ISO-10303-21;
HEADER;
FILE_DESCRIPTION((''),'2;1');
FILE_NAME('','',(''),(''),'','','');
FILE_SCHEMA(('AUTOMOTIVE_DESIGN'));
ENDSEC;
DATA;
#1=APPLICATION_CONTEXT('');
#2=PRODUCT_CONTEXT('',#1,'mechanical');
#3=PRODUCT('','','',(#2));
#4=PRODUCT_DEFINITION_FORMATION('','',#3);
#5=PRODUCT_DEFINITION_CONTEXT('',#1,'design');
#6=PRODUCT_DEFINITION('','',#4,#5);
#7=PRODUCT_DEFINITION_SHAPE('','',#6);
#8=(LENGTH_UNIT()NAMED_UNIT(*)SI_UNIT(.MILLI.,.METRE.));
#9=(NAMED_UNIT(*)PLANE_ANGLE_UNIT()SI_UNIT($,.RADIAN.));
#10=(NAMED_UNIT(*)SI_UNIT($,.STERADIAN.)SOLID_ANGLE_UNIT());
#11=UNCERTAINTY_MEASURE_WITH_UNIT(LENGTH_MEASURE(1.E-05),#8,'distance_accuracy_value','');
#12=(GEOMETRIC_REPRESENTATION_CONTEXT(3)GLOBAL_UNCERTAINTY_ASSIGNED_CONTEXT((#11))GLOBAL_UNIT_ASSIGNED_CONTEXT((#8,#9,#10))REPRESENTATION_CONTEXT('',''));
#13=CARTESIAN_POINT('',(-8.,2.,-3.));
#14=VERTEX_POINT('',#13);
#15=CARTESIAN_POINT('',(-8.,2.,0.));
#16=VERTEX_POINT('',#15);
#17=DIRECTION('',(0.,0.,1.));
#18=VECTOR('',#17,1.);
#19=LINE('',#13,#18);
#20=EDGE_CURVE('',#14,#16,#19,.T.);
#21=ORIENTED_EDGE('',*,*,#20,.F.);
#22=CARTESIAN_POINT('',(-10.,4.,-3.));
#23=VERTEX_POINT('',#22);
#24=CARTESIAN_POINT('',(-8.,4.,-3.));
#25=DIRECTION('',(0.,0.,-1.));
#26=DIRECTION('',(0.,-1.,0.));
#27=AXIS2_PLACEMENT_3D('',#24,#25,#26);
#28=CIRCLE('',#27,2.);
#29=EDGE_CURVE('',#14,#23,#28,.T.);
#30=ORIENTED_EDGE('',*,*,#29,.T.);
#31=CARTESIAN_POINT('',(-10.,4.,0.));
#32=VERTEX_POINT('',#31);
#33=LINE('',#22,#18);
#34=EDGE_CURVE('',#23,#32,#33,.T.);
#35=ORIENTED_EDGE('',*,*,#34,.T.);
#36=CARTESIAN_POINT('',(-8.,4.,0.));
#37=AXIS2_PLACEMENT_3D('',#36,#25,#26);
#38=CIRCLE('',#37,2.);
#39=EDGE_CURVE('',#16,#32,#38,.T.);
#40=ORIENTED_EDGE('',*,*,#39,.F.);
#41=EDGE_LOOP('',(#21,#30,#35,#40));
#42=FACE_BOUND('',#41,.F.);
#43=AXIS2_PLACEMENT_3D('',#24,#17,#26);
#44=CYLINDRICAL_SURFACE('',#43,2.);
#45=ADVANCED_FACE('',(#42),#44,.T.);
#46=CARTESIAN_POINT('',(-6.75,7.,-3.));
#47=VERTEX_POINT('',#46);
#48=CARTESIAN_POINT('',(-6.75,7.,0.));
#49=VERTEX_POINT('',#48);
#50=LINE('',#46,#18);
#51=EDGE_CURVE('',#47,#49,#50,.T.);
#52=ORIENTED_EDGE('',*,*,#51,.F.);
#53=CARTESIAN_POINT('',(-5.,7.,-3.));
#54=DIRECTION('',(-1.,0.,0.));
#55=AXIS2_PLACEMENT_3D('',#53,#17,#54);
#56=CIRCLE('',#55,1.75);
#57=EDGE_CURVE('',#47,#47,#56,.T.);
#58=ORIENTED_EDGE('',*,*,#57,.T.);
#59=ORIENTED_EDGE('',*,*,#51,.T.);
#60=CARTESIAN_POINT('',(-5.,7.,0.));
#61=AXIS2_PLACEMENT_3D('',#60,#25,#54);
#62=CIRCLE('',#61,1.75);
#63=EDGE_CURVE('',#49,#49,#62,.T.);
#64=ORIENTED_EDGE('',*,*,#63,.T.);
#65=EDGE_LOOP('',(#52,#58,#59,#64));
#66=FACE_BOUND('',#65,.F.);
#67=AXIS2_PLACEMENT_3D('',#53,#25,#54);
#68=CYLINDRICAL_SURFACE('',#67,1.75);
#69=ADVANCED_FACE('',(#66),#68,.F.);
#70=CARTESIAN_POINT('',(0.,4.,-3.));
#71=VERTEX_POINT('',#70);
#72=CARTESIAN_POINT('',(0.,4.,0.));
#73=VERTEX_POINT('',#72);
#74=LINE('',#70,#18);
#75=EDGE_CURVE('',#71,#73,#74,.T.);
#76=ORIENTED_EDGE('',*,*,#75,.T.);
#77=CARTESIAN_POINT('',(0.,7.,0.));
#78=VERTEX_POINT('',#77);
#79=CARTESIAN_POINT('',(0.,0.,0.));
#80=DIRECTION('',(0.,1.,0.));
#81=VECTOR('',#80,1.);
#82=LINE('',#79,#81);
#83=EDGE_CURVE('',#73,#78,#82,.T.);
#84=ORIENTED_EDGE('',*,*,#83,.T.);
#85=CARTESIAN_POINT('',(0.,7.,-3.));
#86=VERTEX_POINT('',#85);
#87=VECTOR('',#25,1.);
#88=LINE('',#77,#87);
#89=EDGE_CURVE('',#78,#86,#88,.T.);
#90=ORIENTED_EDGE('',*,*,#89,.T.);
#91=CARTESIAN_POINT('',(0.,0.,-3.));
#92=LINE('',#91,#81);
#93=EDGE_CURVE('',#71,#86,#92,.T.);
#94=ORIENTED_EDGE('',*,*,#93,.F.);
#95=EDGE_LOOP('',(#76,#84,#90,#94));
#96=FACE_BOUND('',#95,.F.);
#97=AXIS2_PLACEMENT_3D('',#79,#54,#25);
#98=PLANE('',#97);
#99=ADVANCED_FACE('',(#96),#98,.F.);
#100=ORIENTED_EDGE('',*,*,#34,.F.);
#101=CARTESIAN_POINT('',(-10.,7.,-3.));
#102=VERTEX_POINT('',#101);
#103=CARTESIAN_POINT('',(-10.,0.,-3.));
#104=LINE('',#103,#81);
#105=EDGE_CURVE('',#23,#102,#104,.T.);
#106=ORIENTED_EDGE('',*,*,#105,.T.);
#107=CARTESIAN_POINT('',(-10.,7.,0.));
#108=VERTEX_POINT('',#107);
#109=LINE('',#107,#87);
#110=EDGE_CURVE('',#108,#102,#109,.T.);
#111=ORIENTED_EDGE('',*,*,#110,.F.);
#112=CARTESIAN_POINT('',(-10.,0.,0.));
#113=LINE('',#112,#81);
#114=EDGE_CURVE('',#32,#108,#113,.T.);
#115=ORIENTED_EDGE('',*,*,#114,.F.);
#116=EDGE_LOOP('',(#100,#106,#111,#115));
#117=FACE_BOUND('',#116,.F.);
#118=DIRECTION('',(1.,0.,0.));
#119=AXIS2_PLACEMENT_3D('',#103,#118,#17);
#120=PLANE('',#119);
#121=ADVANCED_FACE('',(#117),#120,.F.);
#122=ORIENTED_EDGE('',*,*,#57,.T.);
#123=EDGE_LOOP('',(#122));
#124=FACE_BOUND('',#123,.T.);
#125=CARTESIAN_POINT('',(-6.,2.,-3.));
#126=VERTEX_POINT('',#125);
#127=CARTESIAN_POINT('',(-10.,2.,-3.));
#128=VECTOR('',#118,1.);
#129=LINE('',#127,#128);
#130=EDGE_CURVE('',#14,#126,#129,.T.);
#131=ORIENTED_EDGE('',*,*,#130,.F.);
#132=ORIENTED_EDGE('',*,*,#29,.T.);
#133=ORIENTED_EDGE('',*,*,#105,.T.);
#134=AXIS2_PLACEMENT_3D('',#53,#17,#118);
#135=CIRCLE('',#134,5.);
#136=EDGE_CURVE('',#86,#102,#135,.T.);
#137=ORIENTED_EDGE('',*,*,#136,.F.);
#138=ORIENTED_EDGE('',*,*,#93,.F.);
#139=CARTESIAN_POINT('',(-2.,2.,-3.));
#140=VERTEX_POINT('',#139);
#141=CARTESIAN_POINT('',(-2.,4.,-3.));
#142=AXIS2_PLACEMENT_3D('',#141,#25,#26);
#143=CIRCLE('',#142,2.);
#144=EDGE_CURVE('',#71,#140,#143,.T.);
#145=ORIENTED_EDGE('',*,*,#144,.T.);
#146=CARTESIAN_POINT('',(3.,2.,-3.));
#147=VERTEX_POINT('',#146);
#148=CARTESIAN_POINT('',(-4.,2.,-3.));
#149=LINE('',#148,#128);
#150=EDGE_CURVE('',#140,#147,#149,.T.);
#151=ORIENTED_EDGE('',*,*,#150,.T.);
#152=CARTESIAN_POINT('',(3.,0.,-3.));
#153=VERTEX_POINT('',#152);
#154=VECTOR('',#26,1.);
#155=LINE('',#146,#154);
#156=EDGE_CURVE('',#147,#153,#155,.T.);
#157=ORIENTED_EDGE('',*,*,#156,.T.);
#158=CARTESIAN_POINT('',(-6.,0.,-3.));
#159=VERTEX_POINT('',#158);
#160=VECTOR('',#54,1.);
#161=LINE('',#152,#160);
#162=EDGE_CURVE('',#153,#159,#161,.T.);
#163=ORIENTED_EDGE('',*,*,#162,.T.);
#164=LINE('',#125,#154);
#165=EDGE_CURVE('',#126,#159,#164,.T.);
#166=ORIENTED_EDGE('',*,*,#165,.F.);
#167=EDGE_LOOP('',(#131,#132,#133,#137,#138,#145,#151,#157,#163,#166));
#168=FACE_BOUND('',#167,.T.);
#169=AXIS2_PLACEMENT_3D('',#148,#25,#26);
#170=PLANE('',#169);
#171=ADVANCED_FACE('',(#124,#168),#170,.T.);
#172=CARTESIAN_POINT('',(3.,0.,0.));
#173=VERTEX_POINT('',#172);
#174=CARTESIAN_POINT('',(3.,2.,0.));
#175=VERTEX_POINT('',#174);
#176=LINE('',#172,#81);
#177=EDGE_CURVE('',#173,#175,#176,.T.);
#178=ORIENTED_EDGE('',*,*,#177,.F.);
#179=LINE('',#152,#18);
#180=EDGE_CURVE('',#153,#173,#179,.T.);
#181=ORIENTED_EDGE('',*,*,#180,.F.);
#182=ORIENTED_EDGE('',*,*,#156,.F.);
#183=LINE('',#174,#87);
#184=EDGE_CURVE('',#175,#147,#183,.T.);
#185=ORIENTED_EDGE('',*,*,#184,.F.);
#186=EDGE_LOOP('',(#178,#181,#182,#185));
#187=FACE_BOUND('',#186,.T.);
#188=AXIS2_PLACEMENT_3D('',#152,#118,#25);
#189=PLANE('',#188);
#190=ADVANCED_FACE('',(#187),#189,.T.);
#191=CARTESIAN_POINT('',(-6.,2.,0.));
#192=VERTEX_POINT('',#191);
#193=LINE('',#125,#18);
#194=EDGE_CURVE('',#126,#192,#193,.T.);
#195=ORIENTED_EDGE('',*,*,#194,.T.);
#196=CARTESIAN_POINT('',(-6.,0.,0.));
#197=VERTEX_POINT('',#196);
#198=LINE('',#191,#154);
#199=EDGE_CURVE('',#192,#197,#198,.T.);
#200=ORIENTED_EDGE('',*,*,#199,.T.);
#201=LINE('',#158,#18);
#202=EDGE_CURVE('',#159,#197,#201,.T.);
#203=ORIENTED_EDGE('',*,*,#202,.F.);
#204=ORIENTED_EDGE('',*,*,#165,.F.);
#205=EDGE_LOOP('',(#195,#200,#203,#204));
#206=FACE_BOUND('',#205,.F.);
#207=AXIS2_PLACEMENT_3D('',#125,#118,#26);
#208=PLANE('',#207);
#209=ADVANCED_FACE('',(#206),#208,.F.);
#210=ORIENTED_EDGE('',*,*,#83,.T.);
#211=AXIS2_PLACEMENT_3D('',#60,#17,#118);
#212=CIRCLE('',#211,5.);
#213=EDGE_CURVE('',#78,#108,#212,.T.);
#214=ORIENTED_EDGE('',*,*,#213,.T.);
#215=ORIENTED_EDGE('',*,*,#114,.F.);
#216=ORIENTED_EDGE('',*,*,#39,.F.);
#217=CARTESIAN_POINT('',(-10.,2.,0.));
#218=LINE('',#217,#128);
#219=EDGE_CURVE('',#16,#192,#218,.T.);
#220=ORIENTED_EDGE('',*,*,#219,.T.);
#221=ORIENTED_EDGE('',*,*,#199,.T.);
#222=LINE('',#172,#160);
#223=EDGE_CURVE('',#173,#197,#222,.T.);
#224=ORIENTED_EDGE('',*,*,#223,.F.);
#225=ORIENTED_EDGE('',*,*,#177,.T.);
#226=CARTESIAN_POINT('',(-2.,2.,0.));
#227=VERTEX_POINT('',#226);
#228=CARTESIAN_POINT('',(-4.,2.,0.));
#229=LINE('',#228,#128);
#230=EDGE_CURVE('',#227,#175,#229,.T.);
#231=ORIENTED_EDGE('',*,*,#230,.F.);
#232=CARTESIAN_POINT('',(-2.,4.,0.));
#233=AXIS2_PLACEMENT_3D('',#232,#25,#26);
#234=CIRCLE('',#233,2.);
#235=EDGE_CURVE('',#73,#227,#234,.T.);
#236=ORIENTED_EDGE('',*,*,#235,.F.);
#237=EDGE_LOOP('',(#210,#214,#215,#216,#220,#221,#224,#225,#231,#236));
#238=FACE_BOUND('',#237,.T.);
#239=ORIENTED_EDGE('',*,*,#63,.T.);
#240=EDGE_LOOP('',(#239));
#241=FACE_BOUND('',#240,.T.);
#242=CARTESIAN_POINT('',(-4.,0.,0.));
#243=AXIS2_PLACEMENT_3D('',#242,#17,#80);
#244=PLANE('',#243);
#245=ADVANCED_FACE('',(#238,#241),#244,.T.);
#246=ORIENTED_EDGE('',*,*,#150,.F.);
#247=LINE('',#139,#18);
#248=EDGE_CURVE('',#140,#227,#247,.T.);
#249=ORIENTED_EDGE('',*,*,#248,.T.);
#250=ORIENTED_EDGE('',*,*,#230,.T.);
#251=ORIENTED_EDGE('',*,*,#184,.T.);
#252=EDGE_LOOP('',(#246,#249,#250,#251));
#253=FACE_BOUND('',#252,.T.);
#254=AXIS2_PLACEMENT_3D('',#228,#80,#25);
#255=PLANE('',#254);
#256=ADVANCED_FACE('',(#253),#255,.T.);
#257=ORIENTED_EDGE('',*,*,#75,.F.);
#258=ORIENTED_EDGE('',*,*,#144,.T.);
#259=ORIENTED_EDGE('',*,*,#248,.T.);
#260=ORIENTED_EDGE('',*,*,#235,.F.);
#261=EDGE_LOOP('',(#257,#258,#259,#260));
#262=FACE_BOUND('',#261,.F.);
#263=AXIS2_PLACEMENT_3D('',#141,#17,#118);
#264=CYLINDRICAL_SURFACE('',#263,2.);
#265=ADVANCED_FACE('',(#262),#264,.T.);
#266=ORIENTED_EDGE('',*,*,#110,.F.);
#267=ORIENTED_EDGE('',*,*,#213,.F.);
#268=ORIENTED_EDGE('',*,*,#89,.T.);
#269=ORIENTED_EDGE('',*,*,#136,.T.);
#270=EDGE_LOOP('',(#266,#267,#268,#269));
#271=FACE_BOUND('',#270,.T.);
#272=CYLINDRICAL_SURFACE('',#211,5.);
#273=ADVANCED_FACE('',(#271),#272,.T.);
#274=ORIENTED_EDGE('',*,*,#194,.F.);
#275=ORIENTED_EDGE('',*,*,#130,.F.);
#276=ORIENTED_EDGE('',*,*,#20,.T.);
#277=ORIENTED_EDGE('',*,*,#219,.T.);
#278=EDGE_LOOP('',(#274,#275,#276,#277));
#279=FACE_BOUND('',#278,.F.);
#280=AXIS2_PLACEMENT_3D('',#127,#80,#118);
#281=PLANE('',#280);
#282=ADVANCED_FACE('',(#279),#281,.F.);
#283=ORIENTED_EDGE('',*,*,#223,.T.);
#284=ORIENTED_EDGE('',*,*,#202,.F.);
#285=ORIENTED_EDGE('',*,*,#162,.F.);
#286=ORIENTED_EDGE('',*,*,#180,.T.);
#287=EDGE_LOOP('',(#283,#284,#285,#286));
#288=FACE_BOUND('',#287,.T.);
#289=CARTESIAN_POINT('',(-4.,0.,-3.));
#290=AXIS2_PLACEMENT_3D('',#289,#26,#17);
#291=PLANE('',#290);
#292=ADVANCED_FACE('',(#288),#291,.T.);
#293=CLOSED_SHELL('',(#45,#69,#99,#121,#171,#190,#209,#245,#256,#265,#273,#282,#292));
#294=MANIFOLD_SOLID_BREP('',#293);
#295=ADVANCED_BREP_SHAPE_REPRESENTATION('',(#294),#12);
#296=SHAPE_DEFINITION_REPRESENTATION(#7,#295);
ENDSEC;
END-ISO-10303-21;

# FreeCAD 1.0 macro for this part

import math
import FreeCAD as App
import Part
import Sketcher
from FreeCAD import Vector


def edges_at(feature, points):
    """Names of the edges that pass closest to the given points."""
    edges = feature.Shape.Edges
    near = lambda p: min(range(len(edges)), key=lambda i: edges[i].distToShape(Part.Vertex(*p))[0])
    return sorted({f"Edge{near(p) + 1}" for p in points})

doc = App.newDocument("Part")
body = doc.addObject("PartDesign::Body", "Body")

# Sketch on XZ plane
sketch1 = body.newObject("Sketcher::SketchObject", "Sketch")
sketch1.AttachmentSupport = (doc.getObject("XZ_Plane"), [""])
sketch1.MapMode = "FlatFace"
sketch1.addGeometry(Part.LineSegment(Vector(-10, 0, 0), Vector(0, 0, 0)), False)
sketch1.addGeometry(Part.LineSegment(Vector(0, 0, 0), Vector(0, -3, 0)), False)
sketch1.addGeometry(Part.LineSegment(Vector(0, -3, 0), Vector(-10, -3, 0)), False)
sketch1.addGeometry(Part.LineSegment(Vector(-10, -3, 0), Vector(-10, 0, 0)), False)
sketch1.addConstraint(Sketcher.Constraint("Coincident", 0, 2, 1, 1))
sketch1.addConstraint(Sketcher.Constraint("Coincident", 1, 2, 2, 1))
sketch1.addConstraint(Sketcher.Constraint("Coincident", 2, 2, 3, 1))
sketch1.addConstraint(Sketcher.Constraint("Coincident", 3, 2, 0, 1))
sketch1.addConstraint(Sketcher.Constraint("Horizontal", 0))
sketch1.addConstraint(Sketcher.Constraint("Vertical", 1))
sketch1.addConstraint(Sketcher.Constraint("Horizontal", 2))
sketch1.addConstraint(Sketcher.Constraint("Vertical", 3))
sketch1.addConstraint(Sketcher.Constraint("Coincident", 0, 2, -1, 1))
sketch1.addConstraint(Sketcher.Constraint("DistanceX", 0, 1, 0, 2, 10.0))
sketch1.addConstraint(Sketcher.Constraint("DistanceY", 1, 2, 1, 1, 3.0))
pad1 = body.newObject("PartDesign::Pad", "Pad")
pad1.Profile = sketch1
pad1.Length = 12
pad1.Reversed = True

# Sketch on XY plane
sketch2 = body.newObject("Sketcher::SketchObject", "Sketch001")
sketch2.AttachmentSupport = (doc.getObject("XY_Plane"), [""])
sketch2.MapMode = "FlatFace"
sketch2.AttachmentOffset = App.Placement(Vector(0, 0, -3), App.Rotation())
sketch2.addGeometry(Part.LineSegment(Vector(0, 2, 0), Vector(0, 0, 0)), False)
sketch2.addGeometry(Part.LineSegment(Vector(0, 0, 0), Vector(-4, 0, 0)), False)
sketch2.addGeometry(Part.LineSegment(Vector(-4, 0, 0), Vector(-4, 2, 0)), False)
sketch2.addGeometry(Part.LineSegment(Vector(-4, 2, 0), Vector(0, 2, 0)), False)
sketch2.addGeometry(Part.LineSegment(Vector(-10, 2, 0), Vector(-6, 2, 0)), False)
sketch2.addGeometry(Part.LineSegment(Vector(-6, 2, 0), Vector(-6, 0, 0)), False)
sketch2.addGeometry(Part.LineSegment(Vector(-6, 0, 0), Vector(-10, 0, 0)), False)
sketch2.addGeometry(Part.LineSegment(Vector(-10, 0, 0), Vector(-10, 2, 0)), False)
sketch2.addConstraint(Sketcher.Constraint("Coincident", 0, 2, 1, 1))
sketch2.addConstraint(Sketcher.Constraint("Coincident", 1, 2, 2, 1))
sketch2.addConstraint(Sketcher.Constraint("Coincident", 2, 2, 3, 1))
sketch2.addConstraint(Sketcher.Constraint("Coincident", 3, 2, 0, 1))
sketch2.addConstraint(Sketcher.Constraint("Coincident", 4, 2, 5, 1))
sketch2.addConstraint(Sketcher.Constraint("Coincident", 5, 2, 6, 1))
sketch2.addConstraint(Sketcher.Constraint("Coincident", 6, 2, 7, 1))
sketch2.addConstraint(Sketcher.Constraint("Coincident", 7, 2, 4, 1))
sketch2.addConstraint(Sketcher.Constraint("Vertical", 0))
sketch2.addConstraint(Sketcher.Constraint("Horizontal", 1))
sketch2.addConstraint(Sketcher.Constraint("Vertical", 2))
sketch2.addConstraint(Sketcher.Constraint("Horizontal", 3))
sketch2.addConstraint(Sketcher.Constraint("Horizontal", 4))
sketch2.addConstraint(Sketcher.Constraint("Vertical", 5))
sketch2.addConstraint(Sketcher.Constraint("Horizontal", 6))
sketch2.addConstraint(Sketcher.Constraint("Vertical", 7))
sketch2.addConstraint(Sketcher.Constraint("Coincident", 0, 2, -1, 1))
sketch2.addConstraint(Sketcher.Constraint("PointOnObject", 5, 2, -1))
sketch2.addConstraint(Sketcher.Constraint("Horizontal", 3, 2, 4, 2))
sketch2.addConstraint(Sketcher.Constraint("Equal", 3, 4))
sketch2.addConstraint(Sketcher.Constraint("DistanceX", 1, 2, 1, 1, 4.0))
sketch2.addConstraint(Sketcher.Constraint("DistanceY", 0, 2, 0, 1, 2.0))
sketch2.addConstraint(Sketcher.Constraint("DistanceX", 4, 2, 2, 2, 2.0))
pocket1 = body.newObject("PartDesign::Pocket", "Pocket")
pocket1.Profile = sketch2
pocket1.Length = 3
pocket1.Reversed = True

# Sketch on XY plane
sketch3 = body.newObject("Sketcher::SketchObject", "Sketch002")
sketch3.AttachmentSupport = (doc.getObject("XY_Plane"), [""])
sketch3.MapMode = "FlatFace"
sketch3.AttachmentOffset = App.Placement(Vector(0, 0, -3), App.Rotation())
sketch3.addGeometry(Part.Circle(Vector(-5, 7, 0), Vector(0, 0, 1), 1.8), False)
sketch3.addConstraint(Sketcher.Constraint("Diameter", 0, 3.5))
sketch3.addConstraint(Sketcher.Constraint("DistanceX", 0, 3, -1, 1, 5.0))
sketch3.addConstraint(Sketcher.Constraint("DistanceY", -1, 1, 0, 3, 7.0))
pocket2 = body.newObject("PartDesign::Pocket", "Pocket001")
pocket2.Profile = sketch3
pocket2.Length = 3
pocket2.Reversed = True
doc.recompute()

fillet = body.newObject("PartDesign::Fillet", "Fillet")
fillet.Base = (pocket2, edges_at(pocket2, [
    (0, 12, -1.5),
    (0, 2, -1.5),
    (-10, 12, -1.5),
    (-10, 2, -1.5),
]))
fillet.Radius = 2

# Sketch on XY plane
sketch4 = body.newObject("Sketcher::SketchObject", "Sketch003")
sketch4.AttachmentSupport = (doc.getObject("XY_Plane"), [""])
sketch4.MapMode = "FlatFace"
sketch4.addGeometry(Part.LineSegment(Vector(0, 7, 0), Vector(0, 10, 0)), False)
sketch4.addGeometry(Part.ArcOfCircle(Part.Circle(Vector(-2, 10, 0), Vector(0, 0, 1), 2), math.radians(0), math.radians(90)), False)
sketch4.addGeometry(Part.LineSegment(Vector(-2, 12, 0), Vector(-5, 12, 0)), False)
sketch4.addGeometry(Part.ArcOfCircle(Part.Circle(Vector(-5, 7, 0), Vector(0, 0, 1), 5), math.radians(0), math.radians(90)), False)
sketch4.addGeometry(Part.ArcOfCircle(Part.Circle(Vector(-5, 7, 0), Vector(0, 0, 1), 5), math.radians(90), math.radians(180)), False)
sketch4.addGeometry(Part.LineSegment(Vector(-5, 12, 0), Vector(-8, 12, 0)), False)
sketch4.addGeometry(Part.ArcOfCircle(Part.Circle(Vector(-8, 10, 0), Vector(0, 0, 1), 2), math.radians(90), math.radians(180)), False)
sketch4.addGeometry(Part.LineSegment(Vector(-10, 10, 0), Vector(-10, 7, 0)), False)
sketch4.addConstraint(Sketcher.Constraint("Tangent", 0, 2, 1, 1))
sketch4.addConstraint(Sketcher.Constraint("Tangent", 1, 2, 2, 1))
sketch4.addConstraint(Sketcher.Constraint("Tangent", 2, 2, 3, 2))
sketch4.addConstraint(Sketcher.Constraint("Tangent", 3, 1, 0, 1))
sketch4.addConstraint(Sketcher.Constraint("Tangent", 4, 1, 5, 1))
sketch4.addConstraint(Sketcher.Constraint("Tangent", 5, 2, 6, 1))
sketch4.addConstraint(Sketcher.Constraint("Tangent", 6, 2, 7, 1))
sketch4.addConstraint(Sketcher.Constraint("Tangent", 7, 2, 4, 2))
sketch4.addConstraint(Sketcher.Constraint("Vertical", 0))
sketch4.addConstraint(Sketcher.Constraint("Horizontal", 2))
sketch4.addConstraint(Sketcher.Constraint("Horizontal", 5))
sketch4.addConstraint(Sketcher.Constraint("Vertical", 7))
sketch4.addConstraint(Sketcher.Constraint("Coincident", 4, 3, 3, 3))
sketch4.addConstraint(Sketcher.Constraint("Equal", 3, 4))
sketch4.addConstraint(Sketcher.Constraint("Equal", 1, 6))
sketch4.addConstraint(Sketcher.Constraint("PointOnObject", 0, 2, -2))
sketch4.addConstraint(Sketcher.Constraint("Radius", 1, 2.0))
sketch4.addConstraint(Sketcher.Constraint("Radius", 3, 5.0))
sketch4.addConstraint(Sketcher.Constraint("DistanceY", -1, 1, 1, 3, 10.0))
pocket3 = body.newObject("PartDesign::Pocket", "Pocket002")
pocket3.Profile = sketch4
pocket3.Length = 3

# Sketch on YZ plane
sketch5 = body.newObject("Sketcher::SketchObject", "Sketch004")
sketch5.AttachmentSupport = (doc.getObject("YZ_Plane"), [""])
sketch5.MapMode = "FlatFace"
sketch5.AttachmentOffset = App.Placement(Vector(0, 0, -4), App.Rotation())
sketch5.addGeometry(Part.LineSegment(Vector(0, -3, 0), Vector(2, -3, 0)), False)
sketch5.addGeometry(Part.LineSegment(Vector(2, -3, 0), Vector(2, 0, 0)), False)
sketch5.addGeometry(Part.LineSegment(Vector(2, 0, 0), Vector(0, 0, 0)), False)
sketch5.addGeometry(Part.LineSegment(Vector(0, 0, 0), Vector(0, -3, 0)), False)
sketch5.addConstraint(Sketcher.Constraint("Coincident", 0, 2, 1, 1))
sketch5.addConstraint(Sketcher.Constraint("Coincident", 1, 2, 2, 1))
sketch5.addConstraint(Sketcher.Constraint("Coincident", 2, 2, 3, 1))
sketch5.addConstraint(Sketcher.Constraint("Coincident", 3, 2, 0, 1))
sketch5.addConstraint(Sketcher.Constraint("Horizontal", 0))
sketch5.addConstraint(Sketcher.Constraint("Vertical", 1))
sketch5.addConstraint(Sketcher.Constraint("Horizontal", 2))
sketch5.addConstraint(Sketcher.Constraint("Vertical", 3))
sketch5.addConstraint(Sketcher.Constraint("Coincident", 2, 2, -1, 1))
sketch5.addConstraint(Sketcher.Constraint("DistanceX", 0, 1, 0, 2, 2.0))
sketch5.addConstraint(Sketcher.Constraint("DistanceY", 1, 1, 1, 2, 3.0))
pad2 = body.newObject("PartDesign::Pad", "Pad001")
pad2.Profile = sketch5
pad2.Length = 7

doc.recompute()
